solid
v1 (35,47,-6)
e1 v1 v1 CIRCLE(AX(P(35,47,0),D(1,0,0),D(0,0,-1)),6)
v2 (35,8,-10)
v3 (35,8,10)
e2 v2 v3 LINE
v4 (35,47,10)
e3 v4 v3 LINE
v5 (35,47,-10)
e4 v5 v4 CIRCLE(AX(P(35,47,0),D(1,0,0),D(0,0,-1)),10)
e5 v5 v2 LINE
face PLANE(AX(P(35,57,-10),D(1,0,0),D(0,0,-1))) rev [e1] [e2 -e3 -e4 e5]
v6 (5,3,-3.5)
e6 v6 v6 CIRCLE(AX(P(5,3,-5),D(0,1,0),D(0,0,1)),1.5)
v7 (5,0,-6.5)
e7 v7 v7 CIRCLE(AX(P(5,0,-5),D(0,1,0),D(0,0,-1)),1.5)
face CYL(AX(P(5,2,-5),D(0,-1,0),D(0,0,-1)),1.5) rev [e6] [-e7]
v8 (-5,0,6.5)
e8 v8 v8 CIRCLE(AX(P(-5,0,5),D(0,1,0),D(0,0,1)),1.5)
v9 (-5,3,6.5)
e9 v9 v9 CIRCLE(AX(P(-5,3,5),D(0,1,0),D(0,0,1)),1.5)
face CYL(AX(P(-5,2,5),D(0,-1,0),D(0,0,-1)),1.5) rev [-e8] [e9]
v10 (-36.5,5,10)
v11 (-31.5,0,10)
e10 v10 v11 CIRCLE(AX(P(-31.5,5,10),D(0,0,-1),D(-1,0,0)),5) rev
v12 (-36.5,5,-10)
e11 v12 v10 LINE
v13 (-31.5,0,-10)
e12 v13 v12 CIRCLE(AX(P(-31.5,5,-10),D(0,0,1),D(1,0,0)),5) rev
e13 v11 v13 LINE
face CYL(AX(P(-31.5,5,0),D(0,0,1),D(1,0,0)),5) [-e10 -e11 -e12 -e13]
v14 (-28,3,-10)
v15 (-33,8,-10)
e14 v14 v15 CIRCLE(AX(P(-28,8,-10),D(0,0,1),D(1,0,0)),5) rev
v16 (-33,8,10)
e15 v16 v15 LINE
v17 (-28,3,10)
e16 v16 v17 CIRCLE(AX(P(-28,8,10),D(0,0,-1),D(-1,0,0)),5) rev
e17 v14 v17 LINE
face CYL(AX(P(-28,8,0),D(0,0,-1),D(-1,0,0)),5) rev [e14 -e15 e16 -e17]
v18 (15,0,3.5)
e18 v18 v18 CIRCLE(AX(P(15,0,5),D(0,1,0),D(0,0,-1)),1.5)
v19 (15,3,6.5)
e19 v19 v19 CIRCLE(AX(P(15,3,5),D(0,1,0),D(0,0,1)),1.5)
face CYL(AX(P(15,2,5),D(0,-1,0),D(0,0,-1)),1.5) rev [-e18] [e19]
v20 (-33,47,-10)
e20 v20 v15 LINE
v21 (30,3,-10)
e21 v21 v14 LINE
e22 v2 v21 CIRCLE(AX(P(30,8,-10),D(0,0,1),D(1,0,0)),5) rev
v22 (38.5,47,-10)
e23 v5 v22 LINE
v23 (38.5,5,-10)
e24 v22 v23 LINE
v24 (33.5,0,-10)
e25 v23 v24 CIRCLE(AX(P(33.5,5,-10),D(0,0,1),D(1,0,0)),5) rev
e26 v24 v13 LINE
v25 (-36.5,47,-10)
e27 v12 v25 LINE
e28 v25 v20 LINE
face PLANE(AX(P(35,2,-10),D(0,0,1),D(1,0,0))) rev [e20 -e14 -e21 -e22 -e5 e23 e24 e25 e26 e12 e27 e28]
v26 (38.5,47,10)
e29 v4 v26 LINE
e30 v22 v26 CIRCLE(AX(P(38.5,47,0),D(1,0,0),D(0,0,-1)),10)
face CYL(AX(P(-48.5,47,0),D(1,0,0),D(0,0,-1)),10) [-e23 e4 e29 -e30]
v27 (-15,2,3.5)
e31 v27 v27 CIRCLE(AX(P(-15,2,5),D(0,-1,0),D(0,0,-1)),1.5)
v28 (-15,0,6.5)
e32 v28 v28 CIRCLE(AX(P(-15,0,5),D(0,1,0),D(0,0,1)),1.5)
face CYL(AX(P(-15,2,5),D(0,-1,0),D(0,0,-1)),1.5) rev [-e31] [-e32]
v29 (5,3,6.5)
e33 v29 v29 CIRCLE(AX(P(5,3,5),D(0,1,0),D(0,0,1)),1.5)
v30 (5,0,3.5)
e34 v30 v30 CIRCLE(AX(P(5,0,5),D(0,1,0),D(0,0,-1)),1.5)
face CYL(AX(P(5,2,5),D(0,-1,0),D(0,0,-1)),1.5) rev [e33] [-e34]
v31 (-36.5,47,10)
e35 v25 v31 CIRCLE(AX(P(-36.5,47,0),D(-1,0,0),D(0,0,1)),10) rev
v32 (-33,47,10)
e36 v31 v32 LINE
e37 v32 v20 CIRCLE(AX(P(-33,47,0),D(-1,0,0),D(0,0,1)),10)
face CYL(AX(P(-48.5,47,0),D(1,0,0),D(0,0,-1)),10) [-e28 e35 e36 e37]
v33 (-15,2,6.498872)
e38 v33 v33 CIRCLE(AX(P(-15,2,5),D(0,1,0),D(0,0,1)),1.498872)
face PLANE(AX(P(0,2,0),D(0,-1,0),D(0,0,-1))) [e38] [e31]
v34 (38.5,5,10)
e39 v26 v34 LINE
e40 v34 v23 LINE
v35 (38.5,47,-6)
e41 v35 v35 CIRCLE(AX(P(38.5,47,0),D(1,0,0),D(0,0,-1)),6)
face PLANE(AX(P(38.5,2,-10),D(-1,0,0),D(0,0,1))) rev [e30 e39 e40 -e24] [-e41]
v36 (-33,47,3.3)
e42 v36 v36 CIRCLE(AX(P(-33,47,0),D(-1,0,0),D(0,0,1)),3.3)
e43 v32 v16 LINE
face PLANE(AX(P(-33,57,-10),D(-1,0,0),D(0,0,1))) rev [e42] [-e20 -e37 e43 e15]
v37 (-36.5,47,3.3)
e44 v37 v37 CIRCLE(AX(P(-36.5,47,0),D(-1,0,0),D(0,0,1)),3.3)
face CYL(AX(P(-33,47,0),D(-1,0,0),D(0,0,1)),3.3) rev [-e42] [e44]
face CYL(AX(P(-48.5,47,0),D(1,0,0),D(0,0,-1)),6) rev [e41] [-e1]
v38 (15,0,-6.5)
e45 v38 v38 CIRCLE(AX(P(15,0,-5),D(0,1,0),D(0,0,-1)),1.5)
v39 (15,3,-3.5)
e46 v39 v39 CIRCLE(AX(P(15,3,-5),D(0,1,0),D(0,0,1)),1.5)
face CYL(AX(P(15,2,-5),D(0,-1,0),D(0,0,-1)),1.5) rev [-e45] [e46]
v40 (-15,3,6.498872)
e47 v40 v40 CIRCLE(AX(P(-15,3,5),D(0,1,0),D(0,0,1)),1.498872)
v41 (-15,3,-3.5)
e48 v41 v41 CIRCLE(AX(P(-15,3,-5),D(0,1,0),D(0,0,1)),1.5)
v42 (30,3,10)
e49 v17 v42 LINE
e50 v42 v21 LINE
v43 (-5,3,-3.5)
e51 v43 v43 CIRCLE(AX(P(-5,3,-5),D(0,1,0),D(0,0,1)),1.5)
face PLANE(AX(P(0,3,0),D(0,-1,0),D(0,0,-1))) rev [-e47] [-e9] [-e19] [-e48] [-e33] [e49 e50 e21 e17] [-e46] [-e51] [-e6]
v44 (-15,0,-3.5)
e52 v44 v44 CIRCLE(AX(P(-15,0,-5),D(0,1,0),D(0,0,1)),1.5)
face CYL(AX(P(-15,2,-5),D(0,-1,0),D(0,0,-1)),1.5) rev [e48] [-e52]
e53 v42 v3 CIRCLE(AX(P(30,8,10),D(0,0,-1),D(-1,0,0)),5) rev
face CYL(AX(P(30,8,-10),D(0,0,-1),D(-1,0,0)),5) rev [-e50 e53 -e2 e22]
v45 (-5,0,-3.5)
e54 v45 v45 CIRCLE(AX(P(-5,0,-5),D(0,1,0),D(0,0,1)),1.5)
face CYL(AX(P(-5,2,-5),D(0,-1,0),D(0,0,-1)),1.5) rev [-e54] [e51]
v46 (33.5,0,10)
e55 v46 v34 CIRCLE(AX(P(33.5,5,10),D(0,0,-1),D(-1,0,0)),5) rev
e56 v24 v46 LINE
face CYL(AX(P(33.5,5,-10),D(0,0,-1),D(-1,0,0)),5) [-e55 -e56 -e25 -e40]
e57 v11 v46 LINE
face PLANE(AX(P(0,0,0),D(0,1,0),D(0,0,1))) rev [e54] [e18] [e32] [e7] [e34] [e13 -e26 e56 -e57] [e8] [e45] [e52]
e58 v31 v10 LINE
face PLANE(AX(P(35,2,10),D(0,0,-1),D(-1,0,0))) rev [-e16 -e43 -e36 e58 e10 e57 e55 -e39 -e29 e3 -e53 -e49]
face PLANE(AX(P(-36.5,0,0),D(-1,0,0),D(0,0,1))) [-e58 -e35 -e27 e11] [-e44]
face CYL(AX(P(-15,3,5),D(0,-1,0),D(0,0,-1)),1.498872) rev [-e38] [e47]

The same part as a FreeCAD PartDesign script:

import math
import FreeCAD as App
import Part
import Sketcher
Q = App.Units.Quantity


def edges_at(feature, points):
    """Names of the edges that pass closest to the given points."""
    edges = feature.Shape.Edges
    near = lambda p: min(range(len(edges)), key=lambda i: edges[i].distToShape(Part.Vertex(*p))[0])
    return sorted({f"Edge{near(p) + 1}" for p in points})


def add_polygon(sketch, points):
    """Adds a closed chain of lines whose ends are joined by coincident constraints."""
    first, n = sketch.GeometryCount, len(points)
    for a, b in zip(points, points[1:] + points[:1]):
        sketch.addGeometry(Part.LineSegment(App.Vector(*a, 0), App.Vector(*b, 0)), False)
    for i in range(n):
        sketch.addConstraint(Sketcher.Constraint("Coincident", first + i, 2, first + (i + 1) % n, 1))

doc = App.newDocument("Part")
body = doc.addObject("PartDesign::Body", "Body")

sketch1 = body.newObject("Sketcher::SketchObject", "Sketch")
sketch1.AttachmentSupport = (doc.getObject("XZ_Plane"), [""])
sketch1.MapMode = "FlatFace"
add_polygon(sketch1, [(-35, 10), (38.5, 10), (38.5, -10), (-35, -10)])
sketch1.addGeometry(Part.Circle(App.Vector(15, 5, 0), App.Vector(0, 0, 1), 1.5), False)
sketch1.addGeometry(Part.Circle(App.Vector(5, 5, 0), App.Vector(0, 0, 1), 1.5), False)
sketch1.addGeometry(Part.Circle(App.Vector(-5, 5, 0), App.Vector(0, 0, 1), 1.5), False)
sketch1.addGeometry(Part.Circle(App.Vector(-15, 5, 0), App.Vector(0, 0, 1), 1.5), False)
sketch1.addGeometry(Part.Circle(App.Vector(15, -5, 0), App.Vector(0, 0, 1), 1.5), False)
sketch1.addGeometry(Part.Circle(App.Vector(5, -5, 0), App.Vector(0, 0, 1), 1.5), False)
sketch1.addGeometry(Part.Circle(App.Vector(-5, -5, 0), App.Vector(0, 0, 1), 1.5), False)
sketch1.addGeometry(Part.Circle(App.Vector(-15, -5, 0), App.Vector(0, 0, 1), 1.5), False)
sketch1.addConstraint(Sketcher.Constraint("Horizontal", 0))
sketch1.addConstraint(Sketcher.Constraint("Vertical", 1))
sketch1.addConstraint(Sketcher.Constraint("Horizontal", 2))
sketch1.addConstraint(Sketcher.Constraint("Vertical", 3))
sketch1.addConstraint(Sketcher.Constraint("Equal", 4, 5))
sketch1.addConstraint(Sketcher.Constraint("Equal", 5, 6))
sketch1.addConstraint(Sketcher.Constraint("Equal", 6, 7))
sketch1.addConstraint(Sketcher.Constraint("Equal", 7, 8))
sketch1.addConstraint(Sketcher.Constraint("Equal", 8, 9))
sketch1.addConstraint(Sketcher.Constraint("Equal", 9, 10))
sketch1.addConstraint(Sketcher.Constraint("Equal", 10, 11))
sketch1.addConstraint(Sketcher.Constraint("Symmetric", 7, 3, 8, 3, -1, 1))
sketch1.addConstraint(Sketcher.Constraint("Symmetric", 6, 3, 9, 3, -1, 1))
sketch1.addConstraint(Sketcher.Constraint("Symmetric", 5, 3, 10, 3, -1, 1))
sketch1.addConstraint(Sketcher.Constraint("Symmetric", 4, 3, 11, 3, -1, 1))
sketch1.addConstraint(Sketcher.Constraint("Symmetric", 5, 3, 6, 3, -2))
sketch1.addConstraint(Sketcher.Constraint("Symmetric", 4, 3, 7, 3, -2))
sketch1.addConstraint(Sketcher.Constraint("Horizontal", 4, 3, 5, 3))
sketch1.addConstraint(Sketcher.Constraint("Diameter", 4, Q("3 mm")))
sketch1.addConstraint(Sketcher.Constraint("DistanceY", 1, 2, 1, 1, Q("20 mm")))
sketch1.addConstraint(Sketcher.Constraint("DistanceX", 0, 1, 0, 2, Q("73.5 mm")))
sketch1.addConstraint(Sketcher.Constraint("DistanceX", -1, 1, 4, 3, Q("15 mm")))
sketch1.addConstraint(Sketcher.Constraint("DistanceY", -1, 1, 4, 3, Q("5 mm")))
sketch1.addConstraint(Sketcher.Constraint("DistanceX", -1, 1, 5, 3, Q("5 mm")))
sketch1.addConstraint(Sketcher.Constraint("DistanceY", -1, 1, 0, 2, Q("10 mm")))
sketch1.addConstraint(Sketcher.Constraint("DistanceX", 2, 2, -1, 1, Q("35 mm")))
pad1 = body.newObject("PartDesign::Pad", "Pad")
pad1.Profile = sketch1
pad1.Length = 2
pad1.Reversed = True

sketch2 = body.newObject("Sketcher::SketchObject", "Sketch001")
sketch2.AttachmentSupport = (doc.getObject("XZ_Plane"), [""])
sketch2.MapMode = "FlatFace"
sketch2.AttachmentOffset = App.Placement(App.Vector(0, 0, -2), App.Rotation())
add_polygon(sketch2, [(-35, -10), (-35, 10), (-33, 10), (-33, -10)])
add_polygon(sketch2, [(35, -10), (35, 10), (38.5, 10), (38.5, -10)])
sketch2.addConstraint(Sketcher.Constraint("Vertical", 0))
sketch2.addConstraint(Sketcher.Constraint("Horizontal", 1))
sketch2.addConstraint(Sketcher.Constraint("Vertical", 2))
sketch2.addConstraint(Sketcher.Constraint("Horizontal", 3))
sketch2.addConstraint(Sketcher.Constraint("Vertical", 4))
sketch2.addConstraint(Sketcher.Constraint("Horizontal", 5))
sketch2.addConstraint(Sketcher.Constraint("Vertical", 6))
sketch2.addConstraint(Sketcher.Constraint("Horizontal", 7))
sketch2.addConstraint(Sketcher.Constraint("Symmetric", 3, 2, 4, 2, -1, 1))
sketch2.addConstraint(Sketcher.Constraint("Horizontal", 1, 2, 4, 2))
sketch2.addConstraint(Sketcher.Constraint("Horizontal", 3, 2, 6, 2))
sketch2.addConstraint(Sketcher.Constraint("DistanceX", 1, 1, 1, 2, Q("2 mm")))
sketch2.addConstraint(Sketcher.Constraint("DistanceY", 0, 1, 0, 2, Q("20 mm")))
sketch2.addConstraint(Sketcher.Constraint("DistanceX", 5, 1, 5, 2, Q("3.5 mm")))
sketch2.addConstraint(Sketcher.Constraint("DistanceX", 0, 2, -1, 1, Q("35 mm")))
pad2 = body.newObject("PartDesign::Pad", "Pad001")
pad2.Profile = sketch2
pad2.Length = 55
pad2.Reversed = True

sketch3 = body.newObject("Sketcher::SketchObject", "Sketch002")
sketch3.AttachmentSupport = (doc.getObject("YZ_Plane"), [""])
sketch3.MapMode = "FlatFace"
sketch3.AttachmentOffset = App.Placement(App.Vector(0, 0, 38.5), App.Rotation())
sketch3.addGeometry(Part.LineSegment(App.Vector(57, -10, 0), App.Vector(57, 0, 0)), False)
sketch3.addGeometry(Part.ArcOfCircle(Part.Circle(App.Vector(47, 0, 0), App.Vector(0, 0, 1), 10), math.radians(-90), math.radians(0)), False)
sketch3.addGeometry(Part.LineSegment(App.Vector(47, -10, 0), App.Vector(57, -10, 0)), False)
sketch3.addGeometry(Part.LineSegment(App.Vector(57, 10, 0), App.Vector(47, 10, 0)), False)
sketch3.addGeometry(Part.ArcOfCircle(Part.Circle(App.Vector(47, 0, 0), App.Vector(0, 0, 1), 10), math.radians(0), math.radians(90)), False)
sketch3.addGeometry(Part.LineSegment(App.Vector(57, 0, 0), App.Vector(57, 10, 0)), False)
sketch3.addGeometry(Part.Circle(App.Vector(47, 0, 0), App.Vector(0, 0, 1), 6), False)
sketch3.addConstraint(Sketcher.Constraint("Tangent", 0, 2, 1, 2))
sketch3.addConstraint(Sketcher.Constraint("Tangent", 1, 1, 2, 1))
sketch3.addConstraint(Sketcher.Constraint("Coincident", 2, 2, 0, 1))
sketch3.addConstraint(Sketcher.Constraint("Tangent", 3, 2, 4, 2))
sketch3.addConstraint(Sketcher.Constraint("Tangent", 4, 1, 5, 1))
sketch3.addConstraint(Sketcher.Constraint("Coincident", 5, 2, 3, 1))
sketch3.addConstraint(Sketcher.Constraint("Vertical", 0))
sketch3.addConstraint(Sketcher.Constraint("Horizontal", 2))
sketch3.addConstraint(Sketcher.Constraint("Horizontal", 3))
sketch3.addConstraint(Sketcher.Constraint("Vertical", 5))
sketch3.addConstraint(Sketcher.Constraint("Coincident", 4, 3, 1, 3))
sketch3.addConstraint(Sketcher.Constraint("Coincident", 6, 3, 1, 3))
sketch3.addConstraint(Sketcher.Constraint("Equal", 1, 4))
sketch3.addConstraint(Sketcher.Constraint("PointOnObject", 1, 3, -1))
sketch3.addConstraint(Sketcher.Constraint("Diameter", 6, Q("12 mm")))
sketch3.addConstraint(Sketcher.Constraint("Radius", 1, Q("10 mm")))
sketch3.addConstraint(Sketcher.Constraint("DistanceX", -1, 1, 1, 3, Q("47 mm")))
pocket1 = body.newObject("PartDesign::Pocket", "Pocket")
pocket1.Profile = sketch3
pocket1.Length = 87

sketch4 = body.newObject("Sketcher::SketchObject", "Sketch003")
sketch4.AttachmentSupport = (doc.getObject("YZ_Plane"), [""])
sketch4.MapMode = "FlatFace"
sketch4.AttachmentOffset = App.Placement(App.Vector(0, 0, -35), App.Rotation())
sketch4.addGeometry(Part.Circle(App.Vector(47, 0, 0), App.Vector(0, 0, 1), 6), False)
sketch4.addGeometry(Part.Circle(App.Vector(47, 0, 0), App.Vector(0, 0, 1), 3.3), False)
sketch4.addConstraint(Sketcher.Constraint("Coincident", 1, 3, 0, 3))
sketch4.addConstraint(Sketcher.Constraint("PointOnObject", 0, 3, -1))
sketch4.addConstraint(Sketcher.Constraint("Diameter", 0, Q("12 mm")))
sketch4.addConstraint(Sketcher.Constraint("Diameter", 1, Q("6.6 mm")))
sketch4.addConstraint(Sketcher.Constraint("DistanceX", -1, 1, 0, 3, Q("47 mm")))
pad3 = body.newObject("PartDesign::Pad", "Pad002")
pad3.Profile = sketch4
pad3.Length = 2

sketch5 = body.newObject("Sketcher::SketchObject", "Sketch004")
sketch5.AttachmentSupport = (doc.getObject("YZ_Plane"), [""])
sketch5.MapMode = "FlatFace"
sketch5.AttachmentOffset = App.Placement(App.Vector(0, 0, -35), App.Rotation())
sketch5.addGeometry(Part.ArcOfCircle(Part.Circle(App.Vector(47, 0, 0), App.Vector(0, 0, 1), 10), math.radians(-90), math.radians(90)), False)
sketch5.addGeometry(Part.LineSegment(App.Vector(47, -10, 0), App.Vector(0, -10, 0)), False)
sketch5.addGeometry(Part.LineSegment(App.Vector(0, -10, 0), App.Vector(0, 10, 0)), False)
sketch5.addGeometry(Part.LineSegment(App.Vector(0, 10, 0), App.Vector(47, 10, 0)), False)
sketch5.addGeometry(Part.Circle(App.Vector(47, 0, 0), App.Vector(0, 0, 1), 3.3), False)
sketch5.addConstraint(Sketcher.Constraint("Tangent", 0, 1, 1, 1))
sketch5.addConstraint(Sketcher.Constraint("Coincident", 1, 2, 2, 1))
sketch5.addConstraint(Sketcher.Constraint("Coincident", 2, 2, 3, 1))
sketch5.addConstraint(Sketcher.Constraint("Tangent", 3, 2, 0, 2))
sketch5.addConstraint(Sketcher.Constraint("Horizontal", 1))
sketch5.addConstraint(Sketcher.Constraint("Vertical", 2))
sketch5.addConstraint(Sketcher.Constraint("Horizontal", 3))
sketch5.addConstraint(Sketcher.Constraint("Coincident", 4, 3, 0, 3))
sketch5.addConstraint(Sketcher.Constraint("Symmetric", 1, 2, 2, 2, -1, 1))
sketch5.addConstraint(Sketcher.Constraint("Radius", 0, Q("10 mm")))
sketch5.addConstraint(Sketcher.Constraint("Diameter", 4, Q("6.6 mm")))
sketch5.addConstraint(Sketcher.Constraint("DistanceX", 1, 2, 1, 1, Q("47 mm")))
pad4 = body.newObject("PartDesign::Pad", "Pad003")
pad4.Profile = sketch5
pad4.Length = 1.5
pad4.Reversed = True

sketch6 = body.newObject("Sketcher::SketchObject", "Sketch005")
sketch6.AttachmentSupport = (doc.getObject("XZ_Plane"), [""])
sketch6.MapMode = "FlatFace"
sketch6.AttachmentOffset = App.Placement(App.Vector(0, 0, -2), App.Rotation())
add_polygon(sketch6, [(-33, -10), (-33, 10), (35, 10), (35, -10)])
sketch6.addGeometry(Part.Circle(App.Vector(-15, 5, 0), App.Vector(0, 0, 1), 1.5), False)
sketch6.addGeometry(Part.Circle(App.Vector(-5, 5, 0), App.Vector(0, 0, 1), 1.5), False)
sketch6.addGeometry(Part.Circle(App.Vector(5, 5, 0), App.Vector(0, 0, 1), 1.5), False)
sketch6.addGeometry(Part.Circle(App.Vector(15, 5, 0), App.Vector(0, 0, 1), 1.5), False)
sketch6.addGeometry(Part.Circle(App.Vector(-15, -5, 0), App.Vector(0, 0, 1), 1.5), False)
sketch6.addGeometry(Part.Circle(App.Vector(-5, -5, 0), App.Vector(0, 0, 1), 1.5), False)
sketch6.addGeometry(Part.Circle(App.Vector(5, -5, 0), App.Vector(0, 0, 1), 1.5), False)
sketch6.addGeometry(Part.Circle(App.Vector(15, -5, 0), App.Vector(0, 0, 1), 1.5), False)
sketch6.addConstraint(Sketcher.Constraint("Vertical", 0))
sketch6.addConstraint(Sketcher.Constraint("Horizontal", 1))
sketch6.addConstraint(Sketcher.Constraint("Vertical", 2))
sketch6.addConstraint(Sketcher.Constraint("Horizontal", 3))
sketch6.addConstraint(Sketcher.Constraint("Equal", 5, 6))
sketch6.addConstraint(Sketcher.Constraint("Equal", 6, 7))
sketch6.addConstraint(Sketcher.Constraint("Equal", 7, 8))
sketch6.addConstraint(Sketcher.Constraint("Equal", 8, 9))
sketch6.addConstraint(Sketcher.Constraint("Equal", 9, 10))
sketch6.addConstraint(Sketcher.Constraint("Equal", 10, 11))
sketch6.addConstraint(Sketcher.Constraint("Symmetric", 7, 3, 8, 3, -1, 1))
sketch6.addConstraint(Sketcher.Constraint("Symmetric", 6, 3, 9, 3, -1, 1))
sketch6.addConstraint(Sketcher.Constraint("Symmetric", 5, 3, 10, 3, -1, 1))
sketch6.addConstraint(Sketcher.Constraint("Symmetric", 4, 3, 11, 3, -1, 1))
sketch6.addConstraint(Sketcher.Constraint("Symmetric", 5, 3, 6, 3, -2))
sketch6.addConstraint(Sketcher.Constraint("Symmetric", 4, 3, 7, 3, -2))
sketch6.addConstraint(Sketcher.Constraint("Horizontal", 4, 3, 5, 3))
sketch6.addConstraint(Sketcher.Constraint("Diameter", 5, Q("3 mm")))
sketch6.addConstraint(Sketcher.Constraint("DistanceX", 1, 1, 1, 2, Q("68 mm")))
sketch6.addConstraint(Sketcher.Constraint("DistanceY", 0, 1, 0, 2, Q("20 mm")))
sketch6.addConstraint(Sketcher.Constraint("DistanceX", 4, 3, -1, 1, Q("15 mm")))
sketch6.addConstraint(Sketcher.Constraint("DistanceY", -1, 1, 4, 3, Q("5 mm")))
sketch6.addConstraint(Sketcher.Constraint("DistanceX", 5, 3, -1, 1, Q("5 mm")))
sketch6.addConstraint(Sketcher.Constraint("DistanceX", 0, 2, -1, 1, Q("33 mm")))
sketch6.addConstraint(Sketcher.Constraint("DistanceY", -1, 1, 0, 2, Q("10 mm")))
sketch6.addConstraint(Sketcher.Constraint("Diameter", 4, Q("2.997743 mm")))
pad5 = body.newObject("PartDesign::Pad", "Pad004")
pad5.Profile = sketch6
pad5.Length = 1
pad5.Reversed = True
doc.recompute()

fillet = body.newObject("PartDesign::Fillet", "Fillet")
fillet.Base = (pad5, edges_at(pad5, [(-33, 3, 0)]))
fillet.Radius = 5
doc.recompute()

fillet2 = body.newObject("PartDesign::Fillet", "Fillet001")
fillet2.Base = (fillet, edges_at(fillet, [(35, 3, 0)]))
fillet2.Radius = 5
doc.recompute()

fillet3 = body.newObject("PartDesign::Fillet", "Fillet002")
fillet3.Base = (fillet2, edges_at(fillet2, [(-36.5, 0, 0), (38.5, 0, 0)]))
fillet3.Radius = 5

doc.recompute()
